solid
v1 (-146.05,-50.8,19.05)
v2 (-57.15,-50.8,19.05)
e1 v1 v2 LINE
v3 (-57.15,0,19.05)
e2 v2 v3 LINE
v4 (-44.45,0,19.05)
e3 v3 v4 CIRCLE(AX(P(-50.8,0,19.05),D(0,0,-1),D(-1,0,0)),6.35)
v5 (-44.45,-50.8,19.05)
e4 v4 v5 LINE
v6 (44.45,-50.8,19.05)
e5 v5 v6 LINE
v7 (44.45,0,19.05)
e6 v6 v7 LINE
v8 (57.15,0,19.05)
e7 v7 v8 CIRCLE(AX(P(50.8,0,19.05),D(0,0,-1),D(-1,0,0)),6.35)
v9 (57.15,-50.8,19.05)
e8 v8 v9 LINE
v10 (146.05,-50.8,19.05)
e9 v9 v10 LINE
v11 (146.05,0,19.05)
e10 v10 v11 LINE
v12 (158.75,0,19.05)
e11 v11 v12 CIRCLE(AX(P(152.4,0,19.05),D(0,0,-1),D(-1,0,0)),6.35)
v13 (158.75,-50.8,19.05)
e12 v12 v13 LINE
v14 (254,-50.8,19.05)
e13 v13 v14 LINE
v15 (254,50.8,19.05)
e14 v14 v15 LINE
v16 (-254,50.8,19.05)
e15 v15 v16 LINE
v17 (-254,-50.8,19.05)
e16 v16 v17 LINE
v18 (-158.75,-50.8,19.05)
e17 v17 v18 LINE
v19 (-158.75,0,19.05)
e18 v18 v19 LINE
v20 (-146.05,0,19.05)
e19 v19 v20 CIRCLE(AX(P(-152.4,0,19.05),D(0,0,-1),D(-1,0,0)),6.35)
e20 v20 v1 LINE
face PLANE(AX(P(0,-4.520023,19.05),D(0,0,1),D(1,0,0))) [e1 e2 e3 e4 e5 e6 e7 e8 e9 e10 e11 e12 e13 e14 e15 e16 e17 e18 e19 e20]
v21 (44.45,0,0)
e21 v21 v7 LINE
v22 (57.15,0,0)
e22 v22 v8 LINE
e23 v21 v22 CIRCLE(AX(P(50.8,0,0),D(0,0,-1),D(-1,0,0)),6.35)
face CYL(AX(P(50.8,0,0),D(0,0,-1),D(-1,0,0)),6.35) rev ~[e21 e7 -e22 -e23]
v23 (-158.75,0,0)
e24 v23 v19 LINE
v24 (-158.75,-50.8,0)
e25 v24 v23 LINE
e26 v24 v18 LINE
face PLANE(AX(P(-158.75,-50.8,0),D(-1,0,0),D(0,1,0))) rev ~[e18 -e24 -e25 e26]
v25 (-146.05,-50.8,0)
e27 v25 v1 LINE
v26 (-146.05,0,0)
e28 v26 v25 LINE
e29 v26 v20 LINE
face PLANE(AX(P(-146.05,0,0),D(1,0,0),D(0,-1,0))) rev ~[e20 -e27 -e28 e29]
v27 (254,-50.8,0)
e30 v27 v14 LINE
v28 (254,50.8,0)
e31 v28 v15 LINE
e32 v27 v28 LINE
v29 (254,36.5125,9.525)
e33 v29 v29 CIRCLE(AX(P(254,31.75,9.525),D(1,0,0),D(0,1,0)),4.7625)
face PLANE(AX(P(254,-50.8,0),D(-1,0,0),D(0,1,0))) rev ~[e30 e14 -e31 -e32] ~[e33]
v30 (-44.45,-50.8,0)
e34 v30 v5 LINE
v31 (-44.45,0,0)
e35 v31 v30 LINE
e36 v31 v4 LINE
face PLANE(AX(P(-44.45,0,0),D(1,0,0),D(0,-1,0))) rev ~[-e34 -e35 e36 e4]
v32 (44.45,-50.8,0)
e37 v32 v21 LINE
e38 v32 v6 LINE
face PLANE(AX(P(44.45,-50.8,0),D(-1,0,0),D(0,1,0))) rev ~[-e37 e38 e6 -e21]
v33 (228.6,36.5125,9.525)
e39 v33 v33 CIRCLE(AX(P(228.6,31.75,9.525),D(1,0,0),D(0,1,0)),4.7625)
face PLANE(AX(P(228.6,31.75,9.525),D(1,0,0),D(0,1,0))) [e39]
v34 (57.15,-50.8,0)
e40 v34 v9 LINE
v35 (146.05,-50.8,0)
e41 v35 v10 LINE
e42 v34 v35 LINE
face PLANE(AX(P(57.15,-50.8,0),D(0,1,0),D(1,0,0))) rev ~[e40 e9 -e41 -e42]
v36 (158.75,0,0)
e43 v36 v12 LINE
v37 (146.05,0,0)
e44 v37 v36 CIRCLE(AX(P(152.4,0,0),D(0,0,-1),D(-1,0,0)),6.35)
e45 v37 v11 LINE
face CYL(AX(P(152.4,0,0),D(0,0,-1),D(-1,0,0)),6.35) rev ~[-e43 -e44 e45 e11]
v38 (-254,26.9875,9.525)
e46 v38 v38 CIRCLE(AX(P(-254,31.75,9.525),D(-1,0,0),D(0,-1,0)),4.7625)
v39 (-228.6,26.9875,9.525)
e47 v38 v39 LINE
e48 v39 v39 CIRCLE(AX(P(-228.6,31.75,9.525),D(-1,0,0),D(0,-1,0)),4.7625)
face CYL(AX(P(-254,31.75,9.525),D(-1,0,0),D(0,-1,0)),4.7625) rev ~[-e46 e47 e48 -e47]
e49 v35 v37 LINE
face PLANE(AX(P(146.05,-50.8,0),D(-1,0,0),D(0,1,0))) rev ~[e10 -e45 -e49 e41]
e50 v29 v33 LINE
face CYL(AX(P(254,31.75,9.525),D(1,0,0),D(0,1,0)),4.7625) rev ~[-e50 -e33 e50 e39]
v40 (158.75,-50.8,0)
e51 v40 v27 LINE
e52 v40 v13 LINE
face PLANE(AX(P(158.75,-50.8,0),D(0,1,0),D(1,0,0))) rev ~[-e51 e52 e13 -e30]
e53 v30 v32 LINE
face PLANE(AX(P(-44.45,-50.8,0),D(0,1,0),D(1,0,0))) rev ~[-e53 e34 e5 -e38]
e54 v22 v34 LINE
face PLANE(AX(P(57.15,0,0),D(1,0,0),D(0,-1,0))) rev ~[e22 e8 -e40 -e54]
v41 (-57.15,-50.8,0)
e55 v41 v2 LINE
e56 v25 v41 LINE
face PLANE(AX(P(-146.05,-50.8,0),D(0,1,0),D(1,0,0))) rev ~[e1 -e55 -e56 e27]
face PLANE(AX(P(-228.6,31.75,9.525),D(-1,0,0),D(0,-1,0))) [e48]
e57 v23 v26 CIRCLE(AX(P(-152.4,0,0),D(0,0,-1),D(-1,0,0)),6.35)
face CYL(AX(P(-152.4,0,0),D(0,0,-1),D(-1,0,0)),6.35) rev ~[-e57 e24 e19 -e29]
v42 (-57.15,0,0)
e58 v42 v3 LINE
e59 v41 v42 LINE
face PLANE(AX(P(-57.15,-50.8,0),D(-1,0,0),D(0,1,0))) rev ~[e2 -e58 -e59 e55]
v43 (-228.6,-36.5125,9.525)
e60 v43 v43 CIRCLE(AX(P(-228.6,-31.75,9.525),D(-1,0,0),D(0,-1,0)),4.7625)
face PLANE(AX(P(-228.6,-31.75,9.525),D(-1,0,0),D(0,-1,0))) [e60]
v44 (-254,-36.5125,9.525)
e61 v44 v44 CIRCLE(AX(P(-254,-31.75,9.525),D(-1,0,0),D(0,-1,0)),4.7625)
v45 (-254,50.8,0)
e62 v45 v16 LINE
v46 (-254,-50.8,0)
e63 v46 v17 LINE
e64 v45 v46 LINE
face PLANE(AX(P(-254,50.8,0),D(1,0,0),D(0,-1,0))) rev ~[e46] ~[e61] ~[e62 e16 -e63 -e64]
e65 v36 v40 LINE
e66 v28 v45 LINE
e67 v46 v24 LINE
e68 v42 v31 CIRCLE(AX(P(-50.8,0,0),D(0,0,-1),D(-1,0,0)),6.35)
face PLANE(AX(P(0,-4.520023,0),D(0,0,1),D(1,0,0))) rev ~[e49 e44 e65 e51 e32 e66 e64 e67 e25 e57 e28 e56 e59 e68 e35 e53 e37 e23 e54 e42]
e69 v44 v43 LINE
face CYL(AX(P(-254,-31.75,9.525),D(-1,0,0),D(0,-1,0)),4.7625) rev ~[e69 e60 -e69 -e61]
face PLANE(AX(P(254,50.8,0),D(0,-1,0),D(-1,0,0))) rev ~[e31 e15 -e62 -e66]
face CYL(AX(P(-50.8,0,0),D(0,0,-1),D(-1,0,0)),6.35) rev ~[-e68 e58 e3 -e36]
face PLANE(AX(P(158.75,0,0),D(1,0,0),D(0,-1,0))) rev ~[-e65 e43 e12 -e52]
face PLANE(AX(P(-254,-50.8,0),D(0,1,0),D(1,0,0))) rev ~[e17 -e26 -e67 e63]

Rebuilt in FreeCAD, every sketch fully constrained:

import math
import FreeCAD as App
import Part
import Sketcher
Q = App.Units.Quantity

doc = App.newDocument("Part")
body = doc.addObject("PartDesign::Body", "Body")

# Sketch on XY plane
sketch1 = doc.addObject("Sketcher::SketchObject", "Sketch")
body.addObject(sketch1)
sketch1.AttachmentSupport = (doc.XY_Plane, [""])
sketch1.MapMode = "FlatFace"
sketch1.addGeometry(Part.LineSegment(App.Vector(254, -50.8, 0), App.Vector(254, 50.8, 0)), False)
sketch1.addGeometry(Part.LineSegment(App.Vector(254, 50.8, 0), App.Vector(-254, 50.8, 0)), False)
sketch1.addGeometry(Part.LineSegment(App.Vector(-254, 50.8, 0), App.Vector(-254, -50.8, 0)), False)
sketch1.addGeometry(Part.LineSegment(App.Vector(-254, -50.8, 0), App.Vector(-158.75, -50.8, 0)), False)
sketch1.addGeometry(Part.LineSegment(App.Vector(-158.75, -50.8, 0), App.Vector(-158.75, 0, 0)), False)
sketch1.addGeometry(Part.ArcOfCircle(Part.Circle(App.Vector(-152.4, 0, 0), App.Vector(0, 0, 1), 6.35), math.radians(0), math.radians(180)), False)
sketch1.addGeometry(Part.LineSegment(App.Vector(-146.05, 0, 0), App.Vector(-146.05, -50.8, 0)), False)
sketch1.addGeometry(Part.LineSegment(App.Vector(-146.05, -50.8, 0), App.Vector(-57.15, -50.8, 0)), False)
sketch1.addGeometry(Part.LineSegment(App.Vector(-57.15, -50.8, 0), App.Vector(-57.15, 0, 0)), False)
sketch1.addGeometry(Part.ArcOfCircle(Part.Circle(App.Vector(-50.8, 0, 0), App.Vector(0, 0, 1), 6.35), math.radians(0), math.radians(180)), False)
sketch1.addGeometry(Part.LineSegment(App.Vector(-44.45, 0, 0), App.Vector(-44.45, -50.8, 0)), False)
sketch1.addGeometry(Part.LineSegment(App.Vector(-44.45, -50.8, 0), App.Vector(44.45, -50.8, 0)), False)
sketch1.addGeometry(Part.LineSegment(App.Vector(44.45, -50.8, 0), App.Vector(44.45, 0, 0)), False)
sketch1.addGeometry(Part.ArcOfCircle(Part.Circle(App.Vector(50.8, 0, 0), App.Vector(0, 0, 1), 6.35), math.radians(0), math.radians(180)), False)
sketch1.addGeometry(Part.LineSegment(App.Vector(57.15, 0, 0), App.Vector(57.15, -50.8, 0)), False)
sketch1.addGeometry(Part.LineSegment(App.Vector(57.15, -50.8, 0), App.Vector(146.05, -50.8, 0)), False)
sketch1.addGeometry(Part.LineSegment(App.Vector(146.05, -50.8, 0), App.Vector(146.05, 0, 0)), False)
sketch1.addGeometry(Part.ArcOfCircle(Part.Circle(App.Vector(152.4, 0, 0), App.Vector(0, 0, 1), 6.35), math.radians(0), math.radians(180)), False)
sketch1.addGeometry(Part.LineSegment(App.Vector(158.75, 0, 0), App.Vector(158.75, -50.8, 0)), False)
sketch1.addGeometry(Part.LineSegment(App.Vector(158.75, -50.8, 0), App.Vector(254, -50.8, 0)), False)
sketch1.addConstraint(Sketcher.Constraint("Coincident", 0, 2, 1, 1))
sketch1.addConstraint(Sketcher.Constraint("Coincident", 1, 2, 2, 1))
sketch1.addConstraint(Sketcher.Constraint("Coincident", 2, 2, 3, 1))
sketch1.addConstraint(Sketcher.Constraint("Coincident", 3, 2, 4, 1))
sketch1.addConstraint(Sketcher.Constraint("Tangent", 4, 2, 5, 2))
sketch1.addConstraint(Sketcher.Constraint("Tangent", 5, 1, 6, 1))
sketch1.addConstraint(Sketcher.Constraint("Coincident", 6, 2, 7, 1))
sketch1.addConstraint(Sketcher.Constraint("Coincident", 7, 2, 8, 1))
sketch1.addConstraint(Sketcher.Constraint("Tangent", 8, 2, 9, 2))
sketch1.addConstraint(Sketcher.Constraint("Tangent", 9, 1, 10, 1))
sketch1.addConstraint(Sketcher.Constraint("Coincident", 10, 2, 11, 1))
sketch1.addConstraint(Sketcher.Constraint("Coincident", 11, 2, 12, 1))
sketch1.addConstraint(Sketcher.Constraint("Tangent", 12, 2, 13, 2))
sketch1.addConstraint(Sketcher.Constraint("Tangent", 13, 1, 14, 1))
sketch1.addConstraint(Sketcher.Constraint("Coincident", 14, 2, 15, 1))
sketch1.addConstraint(Sketcher.Constraint("Coincident", 15, 2, 16, 1))
sketch1.addConstraint(Sketcher.Constraint("Tangent", 16, 2, 17, 2))
sketch1.addConstraint(Sketcher.Constraint("Tangent", 17, 1, 18, 1))
sketch1.addConstraint(Sketcher.Constraint("Coincident", 18, 2, 19, 1))
sketch1.addConstraint(Sketcher.Constraint("Coincident", 19, 2, 0, 1))
sketch1.addConstraint(Sketcher.Constraint("Vertical", 0))
sketch1.addConstraint(Sketcher.Constraint("Horizontal", 1))
sketch1.addConstraint(Sketcher.Constraint("Vertical", 2))
sketch1.addConstraint(Sketcher.Constraint("Horizontal", 3))
sketch1.addConstraint(Sketcher.Constraint("Vertical", 4))
sketch1.addConstraint(Sketcher.Constraint("Vertical", 6))
sketch1.addConstraint(Sketcher.Constraint("Horizontal", 7))
sketch1.addConstraint(Sketcher.Constraint("Vertical", 8))
sketch1.addConstraint(Sketcher.Constraint("Vertical", 10))
sketch1.addConstraint(Sketcher.Constraint("Horizontal", 11))
sketch1.addConstraint(Sketcher.Constraint("Vertical", 12))
sketch1.addConstraint(Sketcher.Constraint("Vertical", 14))
sketch1.addConstraint(Sketcher.Constraint("Horizontal", 15))
sketch1.addConstraint(Sketcher.Constraint("Vertical", 16))
sketch1.addConstraint(Sketcher.Constraint("Vertical", 18))
sketch1.addConstraint(Sketcher.Constraint("Horizontal", 19))
sketch1.addConstraint(Sketcher.Constraint("Equal", 5, 9))
sketch1.addConstraint(Sketcher.Constraint("Equal", 9, 13))
sketch1.addConstraint(Sketcher.Constraint("Equal", 13, 17))
sketch1.addConstraint(Sketcher.Constraint("Symmetric", 9, 3, 13, 3, -1, 1))
sketch1.addConstraint(Sketcher.Constraint("Symmetric", 5, 3, 17, 3, -1, 1))
sketch1.addConstraint(Sketcher.Constraint("Symmetric", 0, 2, 2, 2, -1, 1))
sketch1.addConstraint(Sketcher.Constraint("PointOnObject", 5, 3, -1))
sketch1.addConstraint(Sketcher.Constraint("PointOnObject", 9, 3, -1))
sketch1.addConstraint(Sketcher.Constraint("Horizontal", 3, 2, 6, 2))
sketch1.addConstraint(Sketcher.Constraint("Horizontal", 7, 2, 10, 2))
sketch1.addConstraint(Sketcher.Constraint("Horizontal", 11, 2, 14, 2))
sketch1.addConstraint(Sketcher.Constraint("Horizontal", 15, 2, 18, 2))
sketch1.addConstraint(Sketcher.Constraint("Equal", 7, 11))
sketch1.addConstraint(Sketcher.Constraint("DistanceX", 1, 2, 1, 1, Q("20 in")))
sketch1.addConstraint(Sketcher.Constraint("DistanceY", 0, 1, 0, 2, Q("4 in")))
sketch1.addConstraint(Sketcher.Constraint("Radius", 5, Q("0.25 in")))
sketch1.addConstraint(Sketcher.Constraint("DistanceX", 7, 1, 7, 2, Q("3.5 in")))
pad1 = doc.addObject("PartDesign::Pad", "Pad")
body.addObject(pad1)
pad1.Profile = sketch1
pad1.Length = Q("0.75 in")

# Sketch on YZ plane
sketch2 = doc.addObject("Sketcher::SketchObject", "Sketch001")
body.addObject(sketch2)
sketch2.AttachmentSupport = (doc.YZ_Plane, [""])
sketch2.MapMode = "FlatFace"
sketch2.AttachmentOffset = App.Placement(App.Vector(0, 0, 10 * 25.4), App.Rotation())
sketch2.addGeometry(Part.Circle(App.Vector(31.75, 9.525, 0), App.Vector(0, 0, 1), 4.7625), False)
sketch2.addConstraint(Sketcher.Constraint("Diameter", 0, Q("0.375 in")))
sketch2.addConstraint(Sketcher.Constraint("DistanceX", -1, 1, 0, 3, Q("1.25 in")))
sketch2.addConstraint(Sketcher.Constraint("DistanceY", -1, 1, 0, 3, Q("0.375 in")))
pocket1 = doc.addObject("PartDesign::Pocket", "Pocket")
body.addObject(pocket1)
pocket1.Profile = sketch2
pocket1.Length = Q("1 in")

# Sketch on YZ plane
sketch3 = doc.addObject("Sketcher::SketchObject", "Sketch002")
body.addObject(sketch3)
sketch3.AttachmentSupport = (doc.YZ_Plane, [""])
sketch3.MapMode = "FlatFace"
sketch3.AttachmentOffset = App.Placement(App.Vector(0, 0, -10 * 25.4), App.Rotation())
sketch3.addGeometry(Part.Circle(App.Vector(31.75, 9.525, 0), App.Vector(0, 0, 1), 4.7625), False)
sketch3.addGeometry(Part.Circle(App.Vector(-31.75, 9.525, 0), App.Vector(0, 0, 1), 4.7625), False)
sketch3.addConstraint(Sketcher.Constraint("Equal", 0, 1))
sketch3.addConstraint(Sketcher.Constraint("Symmetric", 0, 3, 1, 3, -2))
sketch3.addConstraint(Sketcher.Constraint("Diameter", 0, Q("0.375 in")))
sketch3.addConstraint(Sketcher.Constraint("DistanceX", 1, 3, 0, 3, Q("2.5 in")))
sketch3.addConstraint(Sketcher.Constraint("DistanceY", -1, 1, 0, 3, Q("0.375 in")))
pocket2 = doc.addObject("PartDesign::Pocket", "Pocket001")
body.addObject(pocket2)
pocket2.Profile = sketch3
pocket2.Length = Q("1 in")
pocket2.Reversed = True

doc.recompute()
